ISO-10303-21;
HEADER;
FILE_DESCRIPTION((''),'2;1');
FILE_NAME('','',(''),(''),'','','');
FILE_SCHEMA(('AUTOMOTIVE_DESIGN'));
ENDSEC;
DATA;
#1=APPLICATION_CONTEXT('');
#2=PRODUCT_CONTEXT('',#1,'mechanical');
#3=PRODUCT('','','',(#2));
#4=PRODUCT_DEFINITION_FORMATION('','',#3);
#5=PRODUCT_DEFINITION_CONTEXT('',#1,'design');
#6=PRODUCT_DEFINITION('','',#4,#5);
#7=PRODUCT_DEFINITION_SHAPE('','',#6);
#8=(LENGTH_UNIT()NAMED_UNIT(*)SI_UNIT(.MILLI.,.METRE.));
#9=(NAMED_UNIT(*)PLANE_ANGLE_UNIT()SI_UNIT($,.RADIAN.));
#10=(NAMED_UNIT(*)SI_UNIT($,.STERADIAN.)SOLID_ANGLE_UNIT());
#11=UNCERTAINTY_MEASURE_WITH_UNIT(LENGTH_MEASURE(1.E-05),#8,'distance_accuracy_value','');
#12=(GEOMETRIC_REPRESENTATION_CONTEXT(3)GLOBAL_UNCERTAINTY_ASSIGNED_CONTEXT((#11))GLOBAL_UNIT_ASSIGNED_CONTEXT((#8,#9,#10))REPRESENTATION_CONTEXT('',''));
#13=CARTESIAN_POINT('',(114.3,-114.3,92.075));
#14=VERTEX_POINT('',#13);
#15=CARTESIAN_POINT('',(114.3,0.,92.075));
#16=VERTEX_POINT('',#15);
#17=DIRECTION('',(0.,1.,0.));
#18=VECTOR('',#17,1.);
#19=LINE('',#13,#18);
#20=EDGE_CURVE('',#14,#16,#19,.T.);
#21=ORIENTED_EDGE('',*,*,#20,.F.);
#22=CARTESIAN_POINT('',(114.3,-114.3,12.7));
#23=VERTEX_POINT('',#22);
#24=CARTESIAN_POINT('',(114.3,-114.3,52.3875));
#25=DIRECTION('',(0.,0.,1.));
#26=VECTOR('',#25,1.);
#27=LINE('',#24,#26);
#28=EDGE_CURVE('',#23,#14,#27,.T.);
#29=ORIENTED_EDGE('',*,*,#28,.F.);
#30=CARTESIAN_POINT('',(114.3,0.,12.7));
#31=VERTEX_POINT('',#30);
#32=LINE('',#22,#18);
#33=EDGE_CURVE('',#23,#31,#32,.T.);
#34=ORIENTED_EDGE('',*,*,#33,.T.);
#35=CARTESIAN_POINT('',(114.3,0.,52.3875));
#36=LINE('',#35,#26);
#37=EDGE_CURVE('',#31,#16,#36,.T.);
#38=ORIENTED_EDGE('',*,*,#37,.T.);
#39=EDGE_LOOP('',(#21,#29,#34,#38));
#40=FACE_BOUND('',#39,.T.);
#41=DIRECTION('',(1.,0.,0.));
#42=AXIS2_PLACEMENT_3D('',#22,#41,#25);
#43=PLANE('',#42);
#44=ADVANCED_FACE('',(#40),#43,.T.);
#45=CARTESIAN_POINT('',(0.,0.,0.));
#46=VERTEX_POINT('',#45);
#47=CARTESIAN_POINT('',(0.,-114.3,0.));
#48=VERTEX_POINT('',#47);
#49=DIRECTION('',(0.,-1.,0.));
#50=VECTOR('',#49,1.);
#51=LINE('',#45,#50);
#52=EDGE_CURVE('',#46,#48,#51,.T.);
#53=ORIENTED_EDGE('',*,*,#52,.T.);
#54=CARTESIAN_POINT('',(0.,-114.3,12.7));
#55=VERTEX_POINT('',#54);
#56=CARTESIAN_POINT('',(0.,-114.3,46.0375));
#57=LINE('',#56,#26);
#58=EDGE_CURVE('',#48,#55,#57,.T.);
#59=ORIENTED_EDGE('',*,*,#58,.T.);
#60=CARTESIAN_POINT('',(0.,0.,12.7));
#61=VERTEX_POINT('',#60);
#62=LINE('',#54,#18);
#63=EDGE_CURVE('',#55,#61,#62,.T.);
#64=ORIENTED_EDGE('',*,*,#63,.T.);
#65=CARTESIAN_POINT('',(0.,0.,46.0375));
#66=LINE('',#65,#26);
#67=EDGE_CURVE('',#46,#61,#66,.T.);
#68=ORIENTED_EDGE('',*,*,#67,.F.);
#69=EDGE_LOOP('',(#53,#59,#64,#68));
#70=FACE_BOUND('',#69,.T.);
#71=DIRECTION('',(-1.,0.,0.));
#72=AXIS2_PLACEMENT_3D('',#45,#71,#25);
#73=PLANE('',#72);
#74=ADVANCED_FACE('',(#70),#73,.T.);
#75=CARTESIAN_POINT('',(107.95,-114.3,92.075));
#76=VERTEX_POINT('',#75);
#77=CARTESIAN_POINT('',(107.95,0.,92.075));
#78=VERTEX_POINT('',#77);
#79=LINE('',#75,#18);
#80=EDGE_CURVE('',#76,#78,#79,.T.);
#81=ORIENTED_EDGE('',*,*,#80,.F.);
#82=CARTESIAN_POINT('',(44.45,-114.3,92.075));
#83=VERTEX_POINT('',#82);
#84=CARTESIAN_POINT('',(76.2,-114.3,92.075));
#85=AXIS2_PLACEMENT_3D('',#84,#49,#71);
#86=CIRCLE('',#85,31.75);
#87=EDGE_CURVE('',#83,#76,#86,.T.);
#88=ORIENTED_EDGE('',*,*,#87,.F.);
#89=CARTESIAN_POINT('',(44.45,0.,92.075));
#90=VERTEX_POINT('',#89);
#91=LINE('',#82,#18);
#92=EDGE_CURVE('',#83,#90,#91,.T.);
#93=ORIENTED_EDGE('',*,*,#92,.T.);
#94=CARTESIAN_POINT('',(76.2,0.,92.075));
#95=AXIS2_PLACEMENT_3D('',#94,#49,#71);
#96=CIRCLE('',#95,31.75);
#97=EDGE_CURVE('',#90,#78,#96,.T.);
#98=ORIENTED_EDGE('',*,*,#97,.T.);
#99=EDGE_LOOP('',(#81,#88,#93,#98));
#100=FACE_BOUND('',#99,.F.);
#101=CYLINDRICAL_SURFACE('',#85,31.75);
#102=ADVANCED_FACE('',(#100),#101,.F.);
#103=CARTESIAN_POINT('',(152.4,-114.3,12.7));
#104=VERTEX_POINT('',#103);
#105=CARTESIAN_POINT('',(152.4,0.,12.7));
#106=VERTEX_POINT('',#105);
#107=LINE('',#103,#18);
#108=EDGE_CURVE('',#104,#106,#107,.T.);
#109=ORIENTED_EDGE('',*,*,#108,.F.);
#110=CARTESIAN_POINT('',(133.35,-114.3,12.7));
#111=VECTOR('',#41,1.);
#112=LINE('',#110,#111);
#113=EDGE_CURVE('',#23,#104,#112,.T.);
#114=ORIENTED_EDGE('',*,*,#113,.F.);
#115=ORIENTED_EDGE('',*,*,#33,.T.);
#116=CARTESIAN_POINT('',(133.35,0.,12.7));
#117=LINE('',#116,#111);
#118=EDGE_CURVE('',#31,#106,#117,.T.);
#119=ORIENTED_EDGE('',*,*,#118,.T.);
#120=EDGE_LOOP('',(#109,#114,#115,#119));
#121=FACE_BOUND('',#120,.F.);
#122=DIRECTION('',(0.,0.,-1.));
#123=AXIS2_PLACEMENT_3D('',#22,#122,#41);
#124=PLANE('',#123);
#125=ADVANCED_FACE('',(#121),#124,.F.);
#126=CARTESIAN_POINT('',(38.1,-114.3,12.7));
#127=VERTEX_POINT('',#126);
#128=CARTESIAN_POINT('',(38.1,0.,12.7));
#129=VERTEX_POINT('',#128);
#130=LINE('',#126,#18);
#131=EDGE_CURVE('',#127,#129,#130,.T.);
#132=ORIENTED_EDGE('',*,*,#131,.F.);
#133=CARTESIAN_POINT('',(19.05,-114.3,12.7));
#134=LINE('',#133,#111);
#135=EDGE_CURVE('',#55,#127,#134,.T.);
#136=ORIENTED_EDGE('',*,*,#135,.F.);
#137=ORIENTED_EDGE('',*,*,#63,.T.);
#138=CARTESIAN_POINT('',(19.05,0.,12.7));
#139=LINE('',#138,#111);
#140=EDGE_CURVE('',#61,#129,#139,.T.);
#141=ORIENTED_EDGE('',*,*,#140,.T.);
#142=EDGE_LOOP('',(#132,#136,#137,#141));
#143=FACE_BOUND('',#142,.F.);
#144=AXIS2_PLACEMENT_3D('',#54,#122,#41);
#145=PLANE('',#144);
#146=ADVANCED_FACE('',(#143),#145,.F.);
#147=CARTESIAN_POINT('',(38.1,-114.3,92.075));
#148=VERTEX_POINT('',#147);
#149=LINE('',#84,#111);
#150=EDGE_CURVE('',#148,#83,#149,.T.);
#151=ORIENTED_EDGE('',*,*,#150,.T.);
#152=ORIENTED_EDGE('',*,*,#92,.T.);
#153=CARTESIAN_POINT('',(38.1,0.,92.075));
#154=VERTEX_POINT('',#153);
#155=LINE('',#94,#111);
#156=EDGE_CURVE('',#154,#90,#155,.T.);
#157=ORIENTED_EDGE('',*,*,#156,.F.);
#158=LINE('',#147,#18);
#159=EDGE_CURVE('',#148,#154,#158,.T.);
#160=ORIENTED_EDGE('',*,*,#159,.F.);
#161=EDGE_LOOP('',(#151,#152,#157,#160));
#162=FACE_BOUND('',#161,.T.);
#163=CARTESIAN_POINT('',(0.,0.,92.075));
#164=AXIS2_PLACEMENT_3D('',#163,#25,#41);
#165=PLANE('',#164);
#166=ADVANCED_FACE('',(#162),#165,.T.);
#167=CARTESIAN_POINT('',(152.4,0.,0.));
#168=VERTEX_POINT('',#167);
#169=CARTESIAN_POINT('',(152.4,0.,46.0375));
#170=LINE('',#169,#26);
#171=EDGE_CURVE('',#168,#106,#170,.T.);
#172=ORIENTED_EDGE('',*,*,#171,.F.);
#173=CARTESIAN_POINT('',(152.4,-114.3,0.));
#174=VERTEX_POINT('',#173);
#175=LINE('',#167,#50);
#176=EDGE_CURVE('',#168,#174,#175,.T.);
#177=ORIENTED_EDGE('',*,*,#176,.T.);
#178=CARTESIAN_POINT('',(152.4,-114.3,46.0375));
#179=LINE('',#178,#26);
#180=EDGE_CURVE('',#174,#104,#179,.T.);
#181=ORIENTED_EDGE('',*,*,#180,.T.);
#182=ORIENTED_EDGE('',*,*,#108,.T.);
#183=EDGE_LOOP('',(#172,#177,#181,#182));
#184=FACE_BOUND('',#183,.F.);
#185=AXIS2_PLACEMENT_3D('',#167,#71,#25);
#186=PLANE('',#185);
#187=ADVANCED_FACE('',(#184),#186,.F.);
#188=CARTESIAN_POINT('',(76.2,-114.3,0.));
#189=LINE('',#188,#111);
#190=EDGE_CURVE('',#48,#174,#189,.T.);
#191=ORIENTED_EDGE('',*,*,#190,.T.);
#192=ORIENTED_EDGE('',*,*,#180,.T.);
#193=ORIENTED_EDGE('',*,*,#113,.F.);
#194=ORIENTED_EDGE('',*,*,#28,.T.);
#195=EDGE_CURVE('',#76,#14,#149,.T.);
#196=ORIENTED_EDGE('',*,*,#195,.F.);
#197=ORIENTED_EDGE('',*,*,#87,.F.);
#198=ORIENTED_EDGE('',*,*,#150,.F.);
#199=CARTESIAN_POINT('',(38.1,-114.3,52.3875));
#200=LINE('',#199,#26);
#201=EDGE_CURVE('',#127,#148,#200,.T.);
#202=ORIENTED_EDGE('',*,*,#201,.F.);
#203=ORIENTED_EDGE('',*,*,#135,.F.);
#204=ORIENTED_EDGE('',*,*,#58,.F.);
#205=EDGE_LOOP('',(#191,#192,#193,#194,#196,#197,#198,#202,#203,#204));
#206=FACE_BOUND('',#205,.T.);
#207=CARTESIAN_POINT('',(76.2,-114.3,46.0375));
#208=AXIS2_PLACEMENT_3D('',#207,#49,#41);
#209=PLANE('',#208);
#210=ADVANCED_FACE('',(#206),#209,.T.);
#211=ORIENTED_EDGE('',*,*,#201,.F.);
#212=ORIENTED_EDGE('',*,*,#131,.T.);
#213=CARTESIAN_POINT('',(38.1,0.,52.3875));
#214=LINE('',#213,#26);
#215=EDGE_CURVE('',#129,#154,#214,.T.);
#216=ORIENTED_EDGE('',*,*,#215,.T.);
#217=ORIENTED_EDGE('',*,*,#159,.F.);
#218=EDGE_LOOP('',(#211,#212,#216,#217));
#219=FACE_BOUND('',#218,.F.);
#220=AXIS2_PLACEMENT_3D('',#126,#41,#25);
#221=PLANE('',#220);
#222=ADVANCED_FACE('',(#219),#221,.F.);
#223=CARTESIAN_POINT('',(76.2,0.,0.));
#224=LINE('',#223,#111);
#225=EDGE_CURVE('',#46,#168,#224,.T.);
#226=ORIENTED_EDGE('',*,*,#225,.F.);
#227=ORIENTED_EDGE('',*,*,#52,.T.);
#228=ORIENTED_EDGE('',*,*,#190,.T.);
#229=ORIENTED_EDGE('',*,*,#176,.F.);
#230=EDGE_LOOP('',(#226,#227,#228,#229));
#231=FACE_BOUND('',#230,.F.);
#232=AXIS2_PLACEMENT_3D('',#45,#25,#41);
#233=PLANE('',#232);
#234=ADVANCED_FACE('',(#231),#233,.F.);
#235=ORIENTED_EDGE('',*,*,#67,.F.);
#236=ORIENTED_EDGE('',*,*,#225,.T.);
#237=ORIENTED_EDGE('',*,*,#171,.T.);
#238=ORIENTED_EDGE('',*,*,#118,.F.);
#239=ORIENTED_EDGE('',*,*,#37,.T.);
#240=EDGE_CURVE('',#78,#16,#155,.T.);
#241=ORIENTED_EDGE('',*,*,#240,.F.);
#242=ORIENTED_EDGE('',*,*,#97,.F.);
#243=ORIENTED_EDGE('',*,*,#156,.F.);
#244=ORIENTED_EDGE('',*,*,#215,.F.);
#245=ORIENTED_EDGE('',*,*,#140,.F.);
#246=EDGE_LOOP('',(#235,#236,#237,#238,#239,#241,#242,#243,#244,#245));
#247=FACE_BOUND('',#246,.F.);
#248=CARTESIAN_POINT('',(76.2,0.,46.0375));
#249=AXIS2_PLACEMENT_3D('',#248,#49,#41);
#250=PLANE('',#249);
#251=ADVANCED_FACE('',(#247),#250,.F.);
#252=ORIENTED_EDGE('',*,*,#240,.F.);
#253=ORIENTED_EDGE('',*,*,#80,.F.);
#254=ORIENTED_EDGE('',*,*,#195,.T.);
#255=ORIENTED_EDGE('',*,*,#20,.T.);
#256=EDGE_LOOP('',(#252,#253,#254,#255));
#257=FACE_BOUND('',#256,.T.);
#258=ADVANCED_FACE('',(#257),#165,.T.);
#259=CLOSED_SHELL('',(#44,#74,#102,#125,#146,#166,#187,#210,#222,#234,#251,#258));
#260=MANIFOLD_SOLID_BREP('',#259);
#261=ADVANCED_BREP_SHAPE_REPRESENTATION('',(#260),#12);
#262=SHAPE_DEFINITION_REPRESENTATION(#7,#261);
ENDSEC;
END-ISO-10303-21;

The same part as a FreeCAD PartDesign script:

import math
import FreeCAD as App
import Part
import Sketcher
Q = App.Units.Quantity


def add_polygon(sketch, points):
    """Adds a closed chain of lines whose ends are joined by coincident constraints."""
    first, n = sketch.GeometryCount, len(points)
    for a, b in zip(points, points[1:] + points[:1]):
        sketch.addGeometry(Part.LineSegment(App.Vector(*a, 0), App.Vector(*b, 0)), False)
    for i in range(n):
        sketch.addConstraint(Sketcher.Constraint("Coincident", first + i, 2, first + (i + 1) % n, 1))

doc = App.newDocument("Part")
body = doc.addObject("PartDesign::Body", "Body")

sketch1 = doc.addObject("Sketcher::SketchObject", "Sketch")
body.addObject(sketch1)
sketch1.AttachmentSupport = (doc.XZ_Plane, [""])
sketch1.MapMode = "FlatFace"
add_polygon(sketch1, [(0, 92), (0, 0), (152, 0), (152, 92)])
sketch1.addConstraint(Sketcher.Constraint("Vertical", 0))
sketch1.addConstraint(Sketcher.Constraint("Horizontal", 1))
sketch1.addConstraint(Sketcher.Constraint("Vertical", 2))
sketch1.addConstraint(Sketcher.Constraint("Horizontal", 3))
sketch1.addConstraint(Sketcher.Constraint("Coincident", 0, 2, -1, 1))
sketch1.addConstraint(Sketcher.Constraint("DistanceX", 1, 1, 1, 2, Q("6 in")))
sketch1.addConstraint(Sketcher.Constraint("DistanceY", 0, 2, 0, 1, Q("3.625 in")))
pad1 = doc.addObject("PartDesign::Pad", "Pad")
body.addObject(pad1)
pad1.Profile = sketch1
pad1.Length = Q("4.5 in")

sketch2 = doc.addObject("Sketcher::SketchObject", "Sketch001")
body.addObject(sketch2)
sketch2.AttachmentSupport = (doc.XZ_Plane, [""])
sketch2.MapMode = "FlatFace"
sketch2.AttachmentOffset = App.Placement(App.Vector(0, 0, 4.5 * 25.4), App.Rotation())
add_polygon(sketch2, [(0, 92), (0, 13), (38, 13), (38, 92)])
add_polygon(sketch2, [(114, 92), (114, 13), (152, 13), (152, 92)])
sketch2.addConstraint(Sketcher.Constraint("Vertical", 0))
sketch2.addConstraint(Sketcher.Constraint("Horizontal", 1))
sketch2.addConstraint(Sketcher.Constraint("Vertical", 2))
sketch2.addConstraint(Sketcher.Constraint("Horizontal", 3))
sketch2.addConstraint(Sketcher.Constraint("Vertical", 4))
sketch2.addConstraint(Sketcher.Constraint("Horizontal", 5))
sketch2.addConstraint(Sketcher.Constraint("Vertical", 6))
sketch2.addConstraint(Sketcher.Constraint("Horizontal", 7))
sketch2.addConstraint(Sketcher.Constraint("PointOnObject", 0, 2, -2))
sketch2.addConstraint(Sketcher.Constraint("Horizontal", 1, 2, 4, 2))
sketch2.addConstraint(Sketcher.Constraint("Horizontal", 3, 2, 6, 2))
sketch2.addConstraint(Sketcher.Constraint("Equal", 3, 5))
sketch2.addConstraint(Sketcher.Constraint("DistanceX", 1, 1, 1, 2, Q("1.5 in")))
sketch2.addConstraint(Sketcher.Constraint("DistanceX", -1, 1, 5, 2, Q("6 in")))
sketch2.addConstraint(Sketcher.Constraint("DistanceY", -1, 1, 0, 2, Q("0.5 in")))
sketch2.addConstraint(Sketcher.Constraint("DistanceY", 0, 2, 0, 1, Q("3.125 in")))
pocket1 = doc.addObject("PartDesign::Pocket", "Pocket")
body.addObject(pocket1)
pocket1.Profile = sketch2
pocket1.Length = Q("4.5 in")

sketch3 = doc.addObject("Sketcher::SketchObject", "Sketch002")
body.addObject(sketch3)
sketch3.AttachmentSupport = (doc.XZ_Plane, [""])
sketch3.MapMode = "FlatFace"
sketch3.AttachmentOffset = App.Placement(App.Vector(0, 0, 4.5 * 25.4), App.Rotation())
sketch3.addGeometry(Part.ArcOfCircle(Part.Circle(App.Vector(76, 92, 0), App.Vector(0, 0, 1), 32), math.radians(180), math.radians(360)), False)
sketch3.addGeometry(Part.LineSegment(App.Vector(108, 92, 0), App.Vector(44, 92, 0)), False)
sketch3.addConstraint(Sketcher.Constraint("Coincident", 0, 1, 1, 2))
sketch3.addConstraint(Sketcher.Constraint("Coincident", 1, 1, 0, 2))
sketch3.addConstraint(Sketcher.Constraint("Horizontal", 1))
sketch3.addConstraint(Sketcher.Constraint("Radius", 0, Q("1.25 in")))
sketch3.addConstraint(Sketcher.Constraint("DistanceX", -1, 1, 0, 3, Q("3 in")))
sketch3.addConstraint(Sketcher.Constraint("DistanceY", -1, 1, 0, 3, Q("3.625 in")))
sketch3.addConstraint(Sketcher.Constraint("DistanceY", -1, 1, 0, 1, Q("3.625 in")))
pocket2 = doc.addObject("PartDesign::Pocket", "Pocket001")
body.addObject(pocket2)
pocket2.Profile = sketch3
pocket2.Length = Q("4.5 in")

doc.recompute()
